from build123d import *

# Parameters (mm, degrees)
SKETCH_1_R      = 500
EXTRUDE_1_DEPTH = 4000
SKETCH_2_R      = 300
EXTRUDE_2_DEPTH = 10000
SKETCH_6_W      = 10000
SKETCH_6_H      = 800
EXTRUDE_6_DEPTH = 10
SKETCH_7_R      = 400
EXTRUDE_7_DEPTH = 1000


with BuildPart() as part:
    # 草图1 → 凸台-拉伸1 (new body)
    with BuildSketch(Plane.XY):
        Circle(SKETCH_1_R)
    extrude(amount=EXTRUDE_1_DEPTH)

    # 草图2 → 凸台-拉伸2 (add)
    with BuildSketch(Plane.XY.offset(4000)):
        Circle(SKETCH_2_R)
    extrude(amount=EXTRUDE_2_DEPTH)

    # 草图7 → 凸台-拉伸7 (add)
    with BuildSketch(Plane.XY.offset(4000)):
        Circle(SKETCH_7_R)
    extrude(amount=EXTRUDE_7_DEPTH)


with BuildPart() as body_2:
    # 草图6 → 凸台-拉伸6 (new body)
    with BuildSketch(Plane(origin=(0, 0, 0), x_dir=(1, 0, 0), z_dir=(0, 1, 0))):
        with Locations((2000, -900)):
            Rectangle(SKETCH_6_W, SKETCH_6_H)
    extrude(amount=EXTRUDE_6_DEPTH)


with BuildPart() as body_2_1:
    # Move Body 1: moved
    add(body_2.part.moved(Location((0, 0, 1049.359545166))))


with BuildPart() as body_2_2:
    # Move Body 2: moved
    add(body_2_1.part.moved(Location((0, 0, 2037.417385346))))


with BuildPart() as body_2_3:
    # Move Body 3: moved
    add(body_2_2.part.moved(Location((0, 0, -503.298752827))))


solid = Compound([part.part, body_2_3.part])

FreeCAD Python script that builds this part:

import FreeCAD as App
import Part
import Sketcher
from FreeCAD import Vector
Q = App.Units.Quantity


def add_polygon(sketch, points):
    """Adds a closed chain of lines whose ends are joined by coincident constraints."""
    first, n = sketch.GeometryCount, len(points)
    for a, b in zip(points, points[1:] + points[:1]):
        sketch.addGeometry(Part.LineSegment(App.Vector(*a, 0), App.Vector(*b, 0)), False)
    for i in range(n):
        sketch.addConstraint(Sketcher.Constraint("Coincident", first + i, 2, first + (i + 1) % n, 1))

doc = App.newDocument("Part")
body = doc.addObject("PartDesign::Body", "Body")

sketch1 = body.newObject("Sketcher::SketchObject", "Sketch")
sketch1.AttachmentSupport = (doc.getObject("XY_Plane"), [""])
sketch1.MapMode = "FlatFace"
sketch1.addGeometry(Part.Circle(Vector(0, 0, 0), Vector(0, 0, 1), 500), False)
sketch1.addConstraint(Sketcher.Constraint("Coincident", 0, 3, -1, 1))
sketch1.addConstraint(Sketcher.Constraint("Diameter", 0, Q("1000 mm")))
pad1 = body.newObject("PartDesign::Pad", "Pad")
pad1.Profile = sketch1
pad1.Length = 4000

sketch2 = body.newObject("Sketcher::SketchObject", "Sketch001")
sketch2.AttachmentSupport = (doc.getObject("XY_Plane"), [""])
sketch2.MapMode = "FlatFace"
sketch2.AttachmentOffset = App.Placement(Vector(0, 0, 4000), App.Rotation())
sketch2.addGeometry(Part.Circle(Vector(0, 0, 0), Vector(0, 0, 1), 300), False)
sketch2.addConstraint(Sketcher.Constraint("Coincident", 0, 3, -1, 1))
sketch2.addConstraint(Sketcher.Constraint("Diameter", 0, Q("600 mm")))
pad2 = body.newObject("PartDesign::Pad", "Pad001")
pad2.Profile = sketch2
pad2.Length = 10000

sketch3 = body.newObject("Sketcher::SketchObject", "Sketch002")
sketch3.AttachmentSupport = (doc.getObject("XY_Plane"), [""])
sketch3.MapMode = "FlatFace"
sketch3.AttachmentOffset = App.Placement(Vector(0, 0, 4000), App.Rotation())
sketch3.addGeometry(Part.Circle(Vector(0, 0, 0), Vector(0, 0, 1), 400), False)
sketch3.addConstraint(Sketcher.Constraint("Coincident", 0, 3, -1, 1))
sketch3.addConstraint(Sketcher.Constraint("Diameter", 0, Q("800 mm")))
pad3 = body.newObject("PartDesign::Pad", "Pad002")
pad3.Profile = sketch3
pad3.Length = 1000
body2 = doc.addObject("PartDesign::Body", "Body001")

sketch4 = body2.newObject("Sketcher::SketchObject", "Sketch003")
sketch4.AttachmentSupport = (doc.getObject("XZ_Plane001"), [""])
sketch4.MapMode = "FlatFace"
add_polygon(sketch4, [(-3000, 500), (-3000, 1300), (7000, 1300), (7000, 500)])
sketch4.addConstraint(Sketcher.Constraint("Vertical", 0))
sketch4.addConstraint(Sketcher.Constraint("Horizontal", 1))
sketch4.addConstraint(Sketcher.Constraint("Vertical", 2))
sketch4.addConstraint(Sketcher.Constraint("Horizontal", 3))
sketch4.addConstraint(Sketcher.Constraint("DistanceX", 1, 1, 1, 2, Q("10000 mm")))
sketch4.addConstraint(Sketcher.Constraint("DistanceY", 0, 1, 0, 2, Q("800 mm")))
sketch4.addConstraint(Sketcher.Constraint("DistanceX", 0, 2, -1, 1, Q("3000 mm")))
sketch4.addConstraint(Sketcher.Constraint("DistanceY", -1, 1, 0, 2, Q("1300 mm")))
pad4 = body2.newObject("PartDesign::Pad", "Pad003")
pad4.Profile = sketch4
pad4.Length = 10
pad4.Reversed = True
body3 = doc.addObject("PartDesign::Body", "Body002")
doc.recompute()

body2.Placement = App.Placement(Vector(0, 0, 1049.359545), App.Rotation(Vector(0, 0, 1), 0))
boolean = body3.newObject("PartDesign::Boolean", "Boolean")
boolean.Type = "Fuse"
boolean.addObjects([body2])
body4 = doc.addObject("PartDesign::Body", "Body003")
doc.recompute()

body3.Placement = App.Placement(Vector(0, 0, 2037.417385), App.Rotation(Vector(0, 0, 1), 0))
boolean2 = body4.newObject("PartDesign::Boolean", "Boolean001")
boolean2.Type = "Fuse"
boolean2.addObjects([body3])
body5 = doc.addObject("PartDesign::Body", "Body004")
doc.recompute()

body4.Placement = App.Placement(Vector(0, 0, -503.298753), App.Rotation(Vector(0, 0, 1), 0))
boolean3 = body5.newObject("PartDesign::Boolean", "Boolean002")
boolean3.Type = "Fuse"
boolean3.addObjects([body4])

doc.recompute()
